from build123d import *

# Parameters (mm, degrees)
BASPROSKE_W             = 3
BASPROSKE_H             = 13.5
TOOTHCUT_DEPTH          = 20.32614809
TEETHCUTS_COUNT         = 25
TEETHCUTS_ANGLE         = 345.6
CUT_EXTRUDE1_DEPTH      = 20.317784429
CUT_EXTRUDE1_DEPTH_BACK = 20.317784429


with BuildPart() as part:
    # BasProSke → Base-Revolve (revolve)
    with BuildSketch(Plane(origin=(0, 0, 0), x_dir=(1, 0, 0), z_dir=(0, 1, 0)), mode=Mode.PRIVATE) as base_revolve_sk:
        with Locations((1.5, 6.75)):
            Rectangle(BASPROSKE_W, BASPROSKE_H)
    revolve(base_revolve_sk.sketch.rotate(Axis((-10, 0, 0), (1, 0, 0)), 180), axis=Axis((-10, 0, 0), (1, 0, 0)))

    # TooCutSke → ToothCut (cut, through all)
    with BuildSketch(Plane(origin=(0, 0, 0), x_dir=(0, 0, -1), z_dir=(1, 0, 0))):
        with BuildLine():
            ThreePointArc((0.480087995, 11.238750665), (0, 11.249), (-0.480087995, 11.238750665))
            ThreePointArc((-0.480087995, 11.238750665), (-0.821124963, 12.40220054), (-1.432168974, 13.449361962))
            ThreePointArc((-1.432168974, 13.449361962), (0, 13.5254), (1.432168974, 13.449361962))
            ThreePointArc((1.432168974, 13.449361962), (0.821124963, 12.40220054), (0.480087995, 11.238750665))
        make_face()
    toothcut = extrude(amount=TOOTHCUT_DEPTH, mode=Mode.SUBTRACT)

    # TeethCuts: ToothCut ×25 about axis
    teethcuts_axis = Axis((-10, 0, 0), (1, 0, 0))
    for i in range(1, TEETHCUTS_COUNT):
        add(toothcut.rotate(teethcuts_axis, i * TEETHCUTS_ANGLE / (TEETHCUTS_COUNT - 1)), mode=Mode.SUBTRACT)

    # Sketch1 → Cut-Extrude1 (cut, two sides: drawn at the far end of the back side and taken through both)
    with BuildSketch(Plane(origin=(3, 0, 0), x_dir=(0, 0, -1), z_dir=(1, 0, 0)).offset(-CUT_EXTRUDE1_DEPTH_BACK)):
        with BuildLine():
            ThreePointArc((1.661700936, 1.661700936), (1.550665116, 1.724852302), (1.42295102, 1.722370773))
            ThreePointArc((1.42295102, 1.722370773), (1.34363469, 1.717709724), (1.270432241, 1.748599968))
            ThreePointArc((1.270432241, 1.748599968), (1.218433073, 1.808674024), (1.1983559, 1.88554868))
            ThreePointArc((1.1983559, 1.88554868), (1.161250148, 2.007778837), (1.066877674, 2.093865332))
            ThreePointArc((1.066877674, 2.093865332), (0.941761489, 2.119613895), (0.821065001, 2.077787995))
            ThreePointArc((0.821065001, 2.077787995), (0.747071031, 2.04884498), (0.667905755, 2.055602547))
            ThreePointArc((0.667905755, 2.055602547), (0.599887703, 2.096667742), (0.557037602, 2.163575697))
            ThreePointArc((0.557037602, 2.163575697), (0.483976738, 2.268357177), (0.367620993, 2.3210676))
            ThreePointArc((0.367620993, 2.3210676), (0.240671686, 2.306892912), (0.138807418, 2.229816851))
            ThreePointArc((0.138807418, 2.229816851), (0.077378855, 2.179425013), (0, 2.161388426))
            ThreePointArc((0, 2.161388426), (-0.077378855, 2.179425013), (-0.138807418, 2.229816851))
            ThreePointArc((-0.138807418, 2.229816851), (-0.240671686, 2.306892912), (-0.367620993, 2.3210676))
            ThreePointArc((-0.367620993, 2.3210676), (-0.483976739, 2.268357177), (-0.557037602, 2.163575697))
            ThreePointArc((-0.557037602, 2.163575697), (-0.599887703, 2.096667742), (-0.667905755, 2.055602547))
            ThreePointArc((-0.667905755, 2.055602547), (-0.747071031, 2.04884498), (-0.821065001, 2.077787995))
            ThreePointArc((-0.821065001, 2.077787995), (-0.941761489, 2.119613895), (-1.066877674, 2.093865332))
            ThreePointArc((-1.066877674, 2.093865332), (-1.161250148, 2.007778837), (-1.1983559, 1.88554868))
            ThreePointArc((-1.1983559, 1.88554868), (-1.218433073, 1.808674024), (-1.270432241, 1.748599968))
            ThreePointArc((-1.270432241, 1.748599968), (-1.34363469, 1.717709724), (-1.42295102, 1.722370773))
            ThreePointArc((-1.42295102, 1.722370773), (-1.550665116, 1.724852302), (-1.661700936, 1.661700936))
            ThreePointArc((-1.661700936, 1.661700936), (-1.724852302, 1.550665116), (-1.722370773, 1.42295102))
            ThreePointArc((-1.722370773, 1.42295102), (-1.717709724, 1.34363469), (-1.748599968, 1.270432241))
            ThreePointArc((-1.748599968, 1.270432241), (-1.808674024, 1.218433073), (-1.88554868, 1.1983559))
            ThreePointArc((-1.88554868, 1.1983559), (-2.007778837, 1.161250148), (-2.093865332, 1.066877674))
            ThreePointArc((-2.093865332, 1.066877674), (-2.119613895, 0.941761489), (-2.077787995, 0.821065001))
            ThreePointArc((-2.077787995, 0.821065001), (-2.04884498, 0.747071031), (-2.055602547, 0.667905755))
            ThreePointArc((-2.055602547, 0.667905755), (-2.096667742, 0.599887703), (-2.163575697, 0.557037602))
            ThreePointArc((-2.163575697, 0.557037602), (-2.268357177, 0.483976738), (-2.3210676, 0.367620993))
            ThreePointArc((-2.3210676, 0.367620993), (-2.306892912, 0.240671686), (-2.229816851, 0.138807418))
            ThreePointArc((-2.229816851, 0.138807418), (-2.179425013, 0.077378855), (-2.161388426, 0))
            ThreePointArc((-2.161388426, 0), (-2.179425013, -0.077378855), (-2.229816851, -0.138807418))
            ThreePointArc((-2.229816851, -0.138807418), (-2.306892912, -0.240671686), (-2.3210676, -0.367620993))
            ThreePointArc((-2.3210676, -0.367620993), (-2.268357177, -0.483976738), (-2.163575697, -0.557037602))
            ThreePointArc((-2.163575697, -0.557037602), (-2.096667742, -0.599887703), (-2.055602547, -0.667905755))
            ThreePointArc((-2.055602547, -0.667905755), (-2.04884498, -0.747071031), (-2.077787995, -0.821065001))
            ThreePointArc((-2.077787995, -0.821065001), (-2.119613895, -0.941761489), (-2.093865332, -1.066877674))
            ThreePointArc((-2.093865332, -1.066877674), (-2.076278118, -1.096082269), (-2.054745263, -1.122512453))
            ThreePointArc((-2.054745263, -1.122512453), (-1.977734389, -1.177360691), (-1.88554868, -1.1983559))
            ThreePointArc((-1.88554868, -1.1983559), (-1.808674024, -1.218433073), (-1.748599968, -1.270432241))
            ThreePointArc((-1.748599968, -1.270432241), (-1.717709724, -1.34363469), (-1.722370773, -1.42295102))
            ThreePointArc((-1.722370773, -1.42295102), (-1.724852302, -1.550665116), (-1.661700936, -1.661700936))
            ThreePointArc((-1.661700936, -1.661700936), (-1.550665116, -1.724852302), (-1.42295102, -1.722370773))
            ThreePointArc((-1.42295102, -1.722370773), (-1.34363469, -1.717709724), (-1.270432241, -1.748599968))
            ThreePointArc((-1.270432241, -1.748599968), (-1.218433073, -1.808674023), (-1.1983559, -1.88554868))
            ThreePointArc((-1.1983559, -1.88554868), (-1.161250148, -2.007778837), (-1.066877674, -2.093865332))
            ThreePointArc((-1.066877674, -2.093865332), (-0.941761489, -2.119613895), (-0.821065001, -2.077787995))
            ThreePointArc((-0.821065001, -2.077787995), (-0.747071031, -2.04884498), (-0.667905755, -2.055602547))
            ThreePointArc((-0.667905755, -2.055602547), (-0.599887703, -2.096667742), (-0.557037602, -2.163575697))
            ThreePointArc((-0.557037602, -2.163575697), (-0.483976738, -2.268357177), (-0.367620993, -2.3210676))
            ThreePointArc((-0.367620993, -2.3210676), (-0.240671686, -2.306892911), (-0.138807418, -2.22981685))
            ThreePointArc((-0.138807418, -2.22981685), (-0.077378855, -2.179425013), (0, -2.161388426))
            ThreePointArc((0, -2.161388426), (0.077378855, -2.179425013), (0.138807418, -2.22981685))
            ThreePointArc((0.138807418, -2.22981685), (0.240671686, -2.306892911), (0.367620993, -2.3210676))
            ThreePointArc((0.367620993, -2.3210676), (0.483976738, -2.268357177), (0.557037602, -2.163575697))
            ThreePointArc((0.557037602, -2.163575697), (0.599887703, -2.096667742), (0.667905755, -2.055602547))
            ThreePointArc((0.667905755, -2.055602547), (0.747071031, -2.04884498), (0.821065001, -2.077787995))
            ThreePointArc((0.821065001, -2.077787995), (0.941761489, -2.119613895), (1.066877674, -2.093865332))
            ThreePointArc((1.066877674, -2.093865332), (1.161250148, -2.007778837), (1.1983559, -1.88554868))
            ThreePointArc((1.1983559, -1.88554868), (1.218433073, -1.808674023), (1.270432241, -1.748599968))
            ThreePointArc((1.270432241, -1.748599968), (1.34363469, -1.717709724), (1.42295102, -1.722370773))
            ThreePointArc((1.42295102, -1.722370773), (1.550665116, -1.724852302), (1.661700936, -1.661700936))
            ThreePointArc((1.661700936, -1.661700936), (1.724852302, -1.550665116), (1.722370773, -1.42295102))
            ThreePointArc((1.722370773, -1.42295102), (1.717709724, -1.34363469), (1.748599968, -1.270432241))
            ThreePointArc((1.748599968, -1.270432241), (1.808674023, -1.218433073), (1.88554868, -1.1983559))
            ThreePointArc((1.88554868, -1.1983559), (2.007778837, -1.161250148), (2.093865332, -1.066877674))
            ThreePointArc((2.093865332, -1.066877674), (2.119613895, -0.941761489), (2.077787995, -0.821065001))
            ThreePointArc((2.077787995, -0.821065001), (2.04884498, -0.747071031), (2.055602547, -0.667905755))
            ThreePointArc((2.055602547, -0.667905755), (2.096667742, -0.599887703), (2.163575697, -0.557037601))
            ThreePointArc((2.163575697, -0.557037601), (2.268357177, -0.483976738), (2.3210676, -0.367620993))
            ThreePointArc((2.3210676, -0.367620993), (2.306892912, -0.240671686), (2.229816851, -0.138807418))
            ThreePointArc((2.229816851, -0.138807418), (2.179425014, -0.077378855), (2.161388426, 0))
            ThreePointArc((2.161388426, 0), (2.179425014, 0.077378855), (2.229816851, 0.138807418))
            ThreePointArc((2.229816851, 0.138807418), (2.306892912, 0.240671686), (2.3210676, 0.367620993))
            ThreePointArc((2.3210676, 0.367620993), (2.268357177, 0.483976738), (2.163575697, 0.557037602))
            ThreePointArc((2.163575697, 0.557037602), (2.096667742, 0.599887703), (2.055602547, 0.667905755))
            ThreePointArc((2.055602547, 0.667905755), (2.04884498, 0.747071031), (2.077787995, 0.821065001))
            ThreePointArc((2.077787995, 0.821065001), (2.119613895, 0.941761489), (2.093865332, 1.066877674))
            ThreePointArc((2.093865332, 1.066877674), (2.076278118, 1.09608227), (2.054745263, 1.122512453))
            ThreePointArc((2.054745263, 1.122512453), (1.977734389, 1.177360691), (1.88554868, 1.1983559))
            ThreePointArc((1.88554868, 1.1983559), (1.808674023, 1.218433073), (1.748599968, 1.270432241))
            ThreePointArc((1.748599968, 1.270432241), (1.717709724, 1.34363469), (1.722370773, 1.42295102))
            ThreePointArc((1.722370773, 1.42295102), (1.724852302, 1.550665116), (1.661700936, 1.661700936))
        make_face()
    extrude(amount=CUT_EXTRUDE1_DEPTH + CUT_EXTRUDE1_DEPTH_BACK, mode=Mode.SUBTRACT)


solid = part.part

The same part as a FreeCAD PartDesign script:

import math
import FreeCAD as App
import Part
import Sketcher

V = App.Vector
Q = App.Units.Quantity

doc = App.newDocument("Part")
body = doc.addObject("PartDesign::Body", "Body")

# Sketch on XZ plane
sketch1 = body.newObject("Sketcher::SketchObject", "Sketch")
sketch1.AttachmentSupport = (doc.getObject("XZ_Plane"), [""])
sketch1.MapMode = "FlatFace"
sketch1.addGeometry([
    Part.LineSegment(V(0, -13.5, 0), V(0, 0, 0)),
    Part.LineSegment(V(0, 0, 0), V(3, 0, 0)),
    Part.LineSegment(V(3, 0, 0), V(3, -13.5, 0)),
    Part.LineSegment(V(3, -13.5, 0), V(0, -13.5, 0)),
], False)
sketch1.addConstraint([
    Sketcher.Constraint("Coincident", 0, 2, 1, 1),
    Sketcher.Constraint("Coincident", 1, 2, 2, 1),
    Sketcher.Constraint("Coincident", 2, 2, 3, 1),
    Sketcher.Constraint("Coincident", 3, 2, 0, 1),
    Sketcher.Constraint("Vertical", 0),
    Sketcher.Constraint("Horizontal", 1),
    Sketcher.Constraint("Vertical", 2),
    Sketcher.Constraint("Horizontal", 3),
    Sketcher.Constraint("Coincident", 0, 2, -1, 1),
    Sketcher.Constraint("DistanceX", 1, 1, 1, 2, Q("3 mm")),
    Sketcher.Constraint("DistanceY", 0, 1, 0, 2, Q("13.5 mm")),
])
revolution = body.newObject("PartDesign::Revolution", "Revolution")
revolution.Profile = sketch1
revolution.ReferenceAxis = (sketch1, ["H_Axis"])
revolution.Angle = 360

# Sketch on YZ plane
sketch2 = body.newObject("Sketcher::SketchObject", "Sketch001")
sketch2.AttachmentSupport = (doc.getObject("YZ_Plane"), [""])
sketch2.MapMode = "FlatFace"
sketch2.addGeometry([
    Part.ArcOfCircle(Part.Circle(V(0, 0, 0), V(0, 0, 1), 11.2), math.radians(-2.45), math.radians(2.45)),
    Part.ArcOfCircle(Part.Circle(V(10.4, -5.4, 0), V(0, 0, 1), 5), math.radians(53), math.radians(81)),
    Part.ArcOfCircle(Part.Circle(V(0, 0, 0), V(0, 0, 1), 13.5), math.radians(-6.08), math.radians(6.08)),
    Part.ArcOfCircle(Part.Circle(V(10.4, 5.4, 0), V(0, 0, 1), 5), math.radians(-81), math.radians(-53)),
], False)
sketch2.addConstraint([
    Sketcher.Constraint("Coincident", 0, 1, 1, 2),
    Sketcher.Constraint("Coincident", 1, 1, 2, 1),
    Sketcher.Constraint("Coincident", 2, 2, 3, 2),
    Sketcher.Constraint("Coincident", 3, 1, 0, 2),
    Sketcher.Constraint("Coincident", 0, 3, -1, 1),
    Sketcher.Constraint("Coincident", 2, 3, -1, 1),
    Sketcher.Constraint("Equal", 1, 3),
    Sketcher.Constraint("Symmetric", 1, 3, 3, 3, -1),
    Sketcher.Constraint("Radius", 1, Q("5 mm")),
    Sketcher.Constraint("Radius", 0, Q("11.249 mm")),
    Sketcher.Constraint("Radius", 2, Q("13.5254 mm")),
    Sketcher.Constraint("DistanceX", -1, 1, 1, 3, Q("10.424401 mm")),
    Sketcher.Constraint("DistanceX", -1, 1, 0, 1, Q("11.238751 mm")),
])
pocket1 = body.newObject("PartDesign::Pocket", "Pocket")
pocket1.Profile = sketch2
pocket1.Type = "ThroughAll"
pocket1.Reversed = True
doc.recompute()

polarpattern = body.newObject("PartDesign::PolarPattern", "PolarPattern")
polarpattern.Originals = [pocket1]
polarpattern.Axis = (doc.getObject("X_Axis"), [""])
polarpattern.Angle = 360
polarpattern.Occurrences = 25
body.Tip = polarpattern

# Sketch on YZ plane
sketch3 = body.newObject("Sketcher::SketchObject", "Sketch002")
sketch3.AttachmentSupport = (doc.getObject("YZ_Plane"), [""])
sketch3.MapMode = "FlatFace"
sketch3.AttachmentOffset = App.Placement(V(0, 0, 3), App.Rotation())
sketch3.addGeometry([
    Part.ArcOfCircle(Part.Circle(V(1.49, -1.49, 0), V(0, 0, 1), 0.24), math.radians(-45), math.radians(16)),  # 0
    Part.ArcOfCircle(Part.Circle(V(1.89, -1.37, 0), V(0, 0, 1), 0.17), math.radians(144), math.radians(196)),  # 1
    Part.ArcOfCircle(Part.Circle(V(1.89, -1.37, 0), V(0, 0, 1), 0.18), math.radians(92), math.radians(144)),  # 2
    Part.ArcOfCircle(Part.Circle(V(1.88, -0.96, 0), V(0, 0, 1), 0.24), math.radians(-88), math.radians(-27)),  # 3
    Part.ArcOfCircle(Part.Circle(V(1.88, -0.96, 0), V(0, 0, 1), 0.24), math.radians(-27), math.radians(34)),  # 4
    Part.ArcOfCircle(Part.Circle(V(2.22, -0.72, 0), V(0, 0, 1), 0.18), math.radians(162), math.radians(214)),  # 5
    Part.ArcOfCircle(Part.Circle(V(2.22, -0.72, 0), V(0, 0, 1), 0.17), math.radians(110), math.radians(162)),  # 6
    Part.ArcOfCircle(Part.Circle(V(2.08, -0.33, 0), V(0, 0, 1), 0.24), math.radians(-70), math.radians(-9)),  # 7
    Part.ArcOfCircle(Part.Circle(V(2.08, -0.33, 0), V(0, 0, 1), 0.24), math.radians(-9), math.radians(52)),  # 8
    Part.ArcOfCircle(Part.Circle(V(2.34, 0, 0), V(0, 0, 1), 0.17), math.radians(180), math.radians(232)),  # 9
    Part.ArcOfCircle(Part.Circle(V(2.34, 0, 0), V(0, 0, 1), 0.17), math.radians(128), math.radians(180)),  # 10
    Part.ArcOfCircle(Part.Circle(V(2.08, 0.33, 0), V(0, 0, 1), 0.24), math.radians(-52), math.radians(9)),  # 11
    Part.ArcOfCircle(Part.Circle(V(2.08, 0.33, 0), V(0, 0, 1), 0.24), math.radians(9), math.radians(70)),  # 12
    Part.ArcOfCircle(Part.Circle(V(2.22, 0.72, 0), V(0, 0, 1), 0.17), math.radians(-162), math.radians(-110)),  # 13
    Part.ArcOfCircle(Part.Circle(V(2.22, 0.72, 0), V(0, 0, 1), 0.18), math.radians(146), math.radians(198)),  # 14
    Part.ArcOfCircle(Part.Circle(V(1.88, 0.96, 0), V(0, 0, 1), 0.24), math.radians(-34), math.radians(27)),  # 15
    Part.ArcOfCircle(Part.Circle(V(1.88, 0.96, 0), V(0, 0, 1), 0.24), math.radians(27), math.radians(88)),  # 16
    Part.ArcOfCircle(Part.Circle(V(1.89, 1.37, 0), V(0, 0, 1), 0.18), math.radians(-144), math.radians(-92)),  # 17
    Part.ArcOfCircle(Part.Circle(V(1.89, 1.37, 0), V(0, 0, 1), 0.17), math.radians(164), math.radians(216)),  # 18
    Part.ArcOfCircle(Part.Circle(V(1.49, 1.49, 0), V(0, 0, 1), 0.24), math.radians(-16), math.radians(45)),  # 19
    Part.ArcOfCircle(Part.Circle(V(1.49, 1.49, 0), V(0, 0, 1), 0.24), math.radians(45), math.radians(106)),  # 20
    Part.ArcOfCircle(Part.Circle(V(1.37, 1.89, 0), V(0, 0, 1), 0.17), math.radians(-126), math.radians(-74)),  # 21
    Part.ArcOfCircle(Part.Circle(V(1.37, 1.89, 0), V(0, 0, 1), 0.18), math.radians(-178), math.radians(-126)),  # 22
    Part.ArcOfCircle(Part.Circle(V(0.96, 1.88, 0), V(0, 0, 1), 0.24), math.radians(2), math.radians(63)),  # 23
    Part.ArcOfCircle(Part.Circle(V(0.96, 1.88, 0), V(0, 0, 1), 0.24), math.radians(63), math.radians(124)),  # 24
    Part.ArcOfCircle(Part.Circle(V(0.72, 2.22, 0), V(0, 0, 1), 0.18), math.radians(-108), math.radians(-56)),  # 25
    Part.ArcOfCircle(Part.Circle(V(0.72, 2.22, 0), V(0, 0, 1), 0.17), math.radians(-160), math.radians(-108)),  # 26
    Part.ArcOfCircle(Part.Circle(V(0.33, 2.08, 0), V(0, 0, 1), 0.24), math.radians(20), math.radians(81)),  # 27
    Part.ArcOfCircle(Part.Circle(V(0.33, 2.08, 0), V(0, 0, 1), 0.24), math.radians(81), math.radians(142)),  # 28
    Part.ArcOfCircle(Part.Circle(V(0, 2.34, 0), V(0, 0, 1), 0.17), math.radians(-90), math.radians(-38)),  # 29
    Part.ArcOfCircle(Part.Circle(V(0, 2.34, 0), V(0, 0, 1), 0.17), math.radians(-142), math.radians(-90)),  # 30
    Part.ArcOfCircle(Part.Circle(V(-0.33, 2.08, 0), V(0, 0, 1), 0.24), math.radians(38), math.radians(99)),  # 31
    Part.ArcOfCircle(Part.Circle(V(-0.33, 2.08, 0), V(0, 0, 1), 0.24), math.radians(99), math.radians(160)),  # 32
    Part.ArcOfCircle(Part.Circle(V(-0.72, 2.22, 0), V(0, 0, 1), 0.17), math.radians(-72), math.radians(-20)),  # 33
    Part.ArcOfCircle(Part.Circle(V(-0.72, 2.22, 0), V(0, 0, 1), 0.18), math.radians(-124), math.radians(-72)),  # 34
    Part.ArcOfCircle(Part.Circle(V(-0.96, 1.88, 0), V(0, 0, 1), 0.24), math.radians(56), math.radians(117)),  # 35
    Part.ArcOfCircle(Part.Circle(V(-0.96, 1.88, 0), V(0, 0, 1), 0.24), math.radians(117), math.radians(133.23)),  # 36
    Part.ArcOfCircle(Part.Circle(V(-0.96, 1.88, 0), V(0, 0, 1), 0.24), math.radians(133), math.radians(178)),  # 37
    Part.ArcOfCircle(Part.Circle(V(-1.37, 1.89, 0), V(0, 0, 1), 0.18), math.radians(-54), math.radians(-2)),  # 38
    Part.ArcOfCircle(Part.Circle(V(-1.37, 1.89, 0), V(0, 0, 1), 0.17), math.radians(-106), math.radians(-54)),  # 39
    Part.ArcOfCircle(Part.Circle(V(-1.49, 1.49, 0), V(0, 0, 1), 0.24), math.radians(74), math.radians(135)),  # 40
    Part.ArcOfCircle(Part.Circle(V(-1.49, 1.49, 0), V(0, 0, 1), 0.24), math.radians(135), math.radians(196)),  # 41
    Part.ArcOfCircle(Part.Circle(V(-1.89, 1.37, 0), V(0, 0, 1), 0.17), math.radians(-36), math.radians(16)),  # 42
    Part.ArcOfCircle(Part.Circle(V(-1.89, 1.37, 0), V(0, 0, 1), 0.17), math.radians(-88), math.radians(-36)),  # 43
    Part.ArcOfCircle(Part.Circle(V(-1.88, 0.96, 0), V(0, 0, 1), 0.24), math.radians(92), math.radians(153)),  # 44
    Part.ArcOfCircle(Part.Circle(V(-1.88, 0.96, 0), V(0, 0, 1), 0.24), math.radians(153), math.radians(214)),  # 45
    Part.ArcOfCircle(Part.Circle(V(-2.22, 0.72, 0), V(0, 0, 1), 0.18), math.radians(-18), math.radians(34)),  # 46
    Part.ArcOfCircle(Part.Circle(V(-2.22, 0.72, 0), V(0, 0, 1), 0.17), math.radians(-70), math.radians(-18)),  # 47
    Part.ArcOfCircle(Part.Circle(V(-2.08, 0.33, 0), V(0, 0, 1), 0.24), math.radians(110), math.radians(171)),  # 48
    Part.ArcOfCircle(Part.Circle(V(-2.08, 0.33, 0), V(0, 0, 1), 0.24), math.radians(171), math.radians(232)),  # 49
    Part.ArcOfCircle(Part.Circle(V(-2.34, 0, 0), V(0, 0, 1), 0.17), math.radians(0), math.radians(52)),  # 50
    Part.ArcOfCircle(Part.Circle(V(-2.34, 0, 0), V(0, 0, 1), 0.17), math.radians(-52), math.radians(0)),  # 51
    Part.ArcOfCircle(Part.Circle(V(-2.08, -0.33, 0), V(0, 0, 1), 0.24), math.radians(128), math.radians(189)),  # 52
    Part.ArcOfCircle(Part.Circle(V(-2.08, -0.33, 0), V(0, 0, 1), 0.24), math.radians(-171), math.radians(-110)),  # 53
    Part.ArcOfCircle(Part.Circle(V(-2.22, -0.72, 0), V(0, 0, 1), 0.17), math.radians(18), math.radians(70)),  # 54
    Part.ArcOfCircle(Part.Circle(V(-2.22, -0.72, 0), V(0, 0, 1), 0.18), math.radians(-34), math.radians(18)),  # 55
    Part.ArcOfCircle(Part.Circle(V(-1.88, -0.96, 0), V(0, 0, 1), 0.24), math.radians(146), math.radians(207)),  # 56
    Part.ArcOfCircle(Part.Circle(V(-1.88, -0.96, 0), V(0, 0, 1), 0.24), math.radians(-153), math.radians(-92)),  # 57
    Part.ArcOfCircle(Part.Circle(V(-1.89, -1.37, 0), V(0, 0, 1), 0.17), math.radians(36), math.radians(88)),  # 58
    Part.ArcOfCircle(Part.Circle(V(-1.89, -1.37, 0), V(0, 0, 1), 0.17), math.radians(-16), math.radians(36)),  # 59
    Part.ArcOfCircle(Part.Circle(V(-1.49, -1.49, 0), V(0, 0, 1), 0.24), math.radians(164), math.radians(225)),  # 60
    Part.ArcOfCircle(Part.Circle(V(-1.49, -1.49, 0), V(0, 0, 1), 0.24), math.radians(-135), math.radians(-74)),  # 61
    Part.ArcOfCircle(Part.Circle(V(-1.37, -1.89, 0), V(0, 0, 1), 0.17), math.radians(54), math.radians(106)),  # 62
    Part.ArcOfCircle(Part.Circle(V(-1.37, -1.89, 0), V(0, 0, 1), 0.17), math.radians(2), math.radians(54)),  # 63
    Part.ArcOfCircle(Part.Circle(V(-0.96, -1.88, 0), V(0, 0, 1), 0.24), math.radians(-178), math.radians(-117)),  # 64
    Part.ArcOfCircle(Part.Circle(V(-0.96, -1.88, 0), V(0, 0, 1), 0.24), math.radians(-117), math.radians(-56)),  # 65
    Part.ArcOfCircle(Part.Circle(V(-0.72, -2.22, 0), V(0, 0, 1), 0.18), math.radians(72), math.radians(124)),  # 66
    Part.ArcOfCircle(Part.Circle(V(-0.72, -2.22, 0), V(0, 0, 1), 0.18), math.radians(20), math.radians(72)),  # 67
    Part.ArcOfCircle(Part.Circle(V(-0.33, -2.08, 0), V(0, 0, 1), 0.24), math.radians(-160), math.radians(-99)),  # 68
    Part.ArcOfCircle(Part.Circle(V(-0.33, -2.08, 0), V(0, 0, 1), 0.24), math.radians(-99), math.radians(-38)),  # 69
    Part.ArcOfCircle(Part.Circle(V(0, -2.34, 0), V(0, 0, 1), 0.18), math.radians(90), math.radians(142)),  # 70
    Part.ArcOfCircle(Part.Circle(V(0, -2.34, 0), V(0, 0, 1), 0.18), math.radians(38), math.radians(90)),  # 71
    Part.ArcOfCircle(Part.Circle(V(0.33, -2.08, 0), V(0, 0, 1), 0.24), math.radians(-142), math.radians(-81)),  # 72
    Part.ArcOfCircle(Part.Circle(V(0.33, -2.08, 0), V(0, 0, 1), 0.24), math.radians(-81), math.radians(-20)),  # 73
    Part.ArcOfCircle(Part.Circle(V(0.72, -2.22, 0), V(0, 0, 1), 0.17), math.radians(108), math.radians(160)),  # 74
    Part.ArcOfCircle(Part.Circle(V(0.72, -2.22, 0), V(0, 0, 1), 0.18), math.radians(56), math.radians(108)),  # 75
    Part.ArcOfCircle(Part.Circle(V(0.96, -1.88, 0), V(0, 0, 1), 0.24), math.radians(-124), math.radians(-63)),  # 76
    Part.ArcOfCircle(Part.Circle(V(0.96, -1.88, 0), V(0, 0, 1), 0.24), math.radians(-63), math.radians(-46.77)),  # 77
    Part.ArcOfCircle(Part.Circle(V(0.96, -1.88, 0), V(0, 0, 1), 0.24), math.radians(-47), math.radians(-2)),  # 78
    Part.ArcOfCircle(Part.Circle(V(1.37, -1.89, 0), V(0, 0, 1), 0.17), math.radians(126), math.radians(178)),  # 79
    Part.ArcOfCircle(Part.Circle(V(1.37, -1.89, 0), V(0, 0, 1), 0.17), math.radians(74), math.radians(126)),  # 80
    Part.ArcOfCircle(Part.Circle(V(1.49, -1.49, 0), V(0, 0, 1), 0.24), math.radians(-106), math.radians(-45)),  # 81
], False)
sketch3.addConstraint([
    Sketcher.Constraint("Tangent", 0, 2, 1, 2),
    Sketcher.Constraint("Tangent", 1, 1, 2, 2),
    Sketcher.Constraint("Tangent", 2, 1, 3, 1),
    Sketcher.Constraint("Tangent", 3, 2, 4, 1),
    Sketcher.Constraint("Tangent", 4, 2, 5, 2),
    Sketcher.Constraint("Tangent", 5, 1, 6, 2),
    Sketcher.Constraint("Tangent", 6, 1, 7, 1),
    Sketcher.Constraint("Tangent", 7, 2, 8, 1),
    Sketcher.Constraint("Tangent", 8, 2, 9, 2),
    Sketcher.Constraint("Tangent", 9, 1, 10, 2),
    Sketcher.Constraint("Tangent", 10, 1, 11, 1),
    Sketcher.Constraint("Tangent", 11, 2, 12, 1),
    Sketcher.Constraint("Tangent", 12, 2, 13, 2),
    Sketcher.Constraint("Tangent", 13, 1, 14, 2),
    Sketcher.Constraint("Tangent", 14, 1, 15, 1),
    Sketcher.Constraint("Tangent", 15, 2, 16, 1),
    Sketcher.Constraint("Tangent", 16, 2, 17, 2),
    Sketcher.Constraint("Tangent", 17, 1, 18, 2),
    Sketcher.Constraint("Tangent", 18, 1, 19, 1),
    Sketcher.Constraint("Tangent", 19, 2, 20, 1),
    Sketcher.Constraint("Tangent", 20, 2, 21, 2),
    Sketcher.Constraint("Tangent", 21, 1, 22, 2),
    Sketcher.Constraint("Tangent", 22, 1, 23, 1),
    Sketcher.Constraint("Tangent", 23, 2, 24, 1),
    Sketcher.Constraint("Tangent", 24, 2, 25, 2),
    Sketcher.Constraint("Tangent", 25, 1, 26, 2),
    Sketcher.Constraint("Tangent", 26, 1, 27, 1),
    Sketcher.Constraint("Tangent", 27, 2, 28, 1),
    Sketcher.Constraint("Tangent", 28, 2, 29, 2),
    Sketcher.Constraint("Tangent", 29, 1, 30, 2),
    Sketcher.Constraint("Tangent", 30, 1, 31, 1),
    Sketcher.Constraint("Tangent", 31, 2, 32, 1),
    Sketcher.Constraint("Tangent", 32, 2, 33, 2),
    Sketcher.Constraint("Tangent", 33, 1, 34, 2),
    Sketcher.Constraint("Tangent", 34, 1, 35, 1),
    Sketcher.Constraint("Tangent", 35, 2, 36, 1),
    Sketcher.Constraint("Tangent", 36, 2, 37, 1),
    Sketcher.Constraint("Tangent", 37, 2, 38, 2),
    Sketcher.Constraint("Tangent", 38, 1, 39, 2),
    Sketcher.Constraint("Tangent", 39, 1, 40, 1),
    Sketcher.Constraint("Tangent", 40, 2, 41, 1),
    Sketcher.Constraint("Tangent", 41, 2, 42, 2),
    Sketcher.Constraint("Tangent", 42, 1, 43, 2),
    Sketcher.Constraint("Tangent", 43, 1, 44, 1),
    Sketcher.Constraint("Tangent", 44, 2, 45, 1),
    Sketcher.Constraint("Tangent", 45, 2, 46, 2),
    Sketcher.Constraint("Tangent", 46, 1, 47, 2),
    Sketcher.Constraint("Tangent", 47, 1, 48, 1),
    Sketcher.Constraint("Tangent", 48, 2, 49, 1),
    Sketcher.Constraint("Tangent", 49, 2, 50, 2),
    Sketcher.Constraint("Tangent", 50, 1, 51, 2),
    Sketcher.Constraint("Tangent", 51, 1, 52, 1),
    Sketcher.Constraint("Tangent", 52, 2, 53, 1),
    Sketcher.Constraint("Tangent", 53, 2, 54, 2),
    Sketcher.Constraint("Tangent", 54, 1, 55, 2),
    Sketcher.Constraint("Tangent", 55, 1, 56, 1),
    Sketcher.Constraint("Tangent", 56, 2, 57, 1),
    Sketcher.Constraint("Tangent", 57, 2, 58, 2),
    Sketcher.Constraint("Tangent", 58, 1, 59, 2),
    Sketcher.Constraint("Tangent", 59, 1, 60, 1),
    Sketcher.Constraint("Tangent", 60, 2, 61, 1),
    Sketcher.Constraint("Tangent", 61, 2, 62, 2),
    Sketcher.Constraint("Tangent", 62, 1, 63, 2),
    Sketcher.Constraint("Tangent", 63, 1, 64, 1),
    Sketcher.Constraint("Tangent", 64, 2, 65, 1),
    Sketcher.Constraint("Tangent", 65, 2, 66, 2),
    Sketcher.Constraint("Tangent", 66, 1, 67, 2),
    Sketcher.Constraint("Tangent", 67, 1, 68, 1),
    Sketcher.Constraint("Tangent", 68, 2, 69, 1),
    Sketcher.Constraint("Tangent", 69, 2, 70, 2),
    Sketcher.Constraint("Tangent", 70, 1, 71, 2),
    Sketcher.Constraint("Tangent", 71, 1, 72, 1),
    Sketcher.Constraint("Tangent", 72, 2, 73, 1),
    Sketcher.Constraint("Tangent", 73, 2, 74, 2),
    Sketcher.Constraint("Tangent", 74, 1, 75, 2),
    Sketcher.Constraint("Tangent", 75, 1, 76, 1),
    Sketcher.Constraint("Tangent", 76, 2, 77, 1),
    Sketcher.Constraint("Tangent", 77, 2, 78, 1),
    Sketcher.Constraint("Tangent", 78, 2, 79, 2),
    Sketcher.Constraint("Tangent", 79, 1, 80, 2),
    Sketcher.Constraint("Tangent", 80, 1, 81, 1),
    Sketcher.Constraint("Tangent", 81, 2, 0, 1),
    Sketcher.Constraint("Coincident", 37, 3, 35, 3),
    Sketcher.Constraint("Coincident", 78, 3, 76, 3),
    Sketcher.Constraint("Equal", 1, 2),
    Sketcher.Constraint("Equal", 0, 3),
    Sketcher.Constraint("Equal", 3, 4),
    Sketcher.Constraint("Equal", 2, 5),
    Sketcher.Constraint("Equal", 5, 6),
    Sketcher.Constraint("Equal", 4, 7),
    Sketcher.Constraint("Equal", 7, 8),
    Sketcher.Constraint("Equal", 6, 9),
    Sketcher.Constraint("Equal", 9, 10),
    Sketcher.Constraint("Equal", 8, 11),
    Sketcher.Constraint("Equal", 11, 12),
    Sketcher.Constraint("Equal", 10, 13),
    Sketcher.Constraint("Equal", 13, 14),
    Sketcher.Constraint("Equal", 12, 15),
    Sketcher.Constraint("Equal", 15, 16),
    Sketcher.Constraint("Equal", 14, 17),
    Sketcher.Constraint("Equal", 17, 18),
    Sketcher.Constraint("Equal", 16, 19),
    Sketcher.Constraint("Equal", 19, 20),
    Sketcher.Constraint("Equal", 18, 21),
    Sketcher.Constraint("Equal", 21, 22),
    Sketcher.Constraint("Equal", 20, 23),
    Sketcher.Constraint("Equal", 23, 24),
    Sketcher.Constraint("Equal", 22, 25),
    Sketcher.Constraint("Equal", 25, 26),
    Sketcher.Constraint("Equal", 24, 27),
    Sketcher.Constraint("Equal", 27, 28),
    Sketcher.Constraint("Equal", 26, 29),
    Sketcher.Constraint("Equal", 29, 30),
    Sketcher.Constraint("Equal", 28, 31),
    Sketcher.Constraint("Equal", 31, 32),
    Sketcher.Constraint("Equal", 30, 33),
    Sketcher.Constraint("Equal", 33, 34),
    Sketcher.Constraint("Equal", 32, 35),
    Sketcher.Constraint("Equal", 34, 38),
    Sketcher.Constraint("Equal", 38, 39),
    Sketcher.Constraint("Equal", 37, 40),
    Sketcher.Constraint("Equal", 40, 41),
    Sketcher.Constraint("Equal", 39, 42),
    Sketcher.Constraint("Equal", 42, 43),
    Sketcher.Constraint("Equal", 41, 44),
    Sketcher.Constraint("Equal", 44, 45),
    Sketcher.Constraint("Equal", 43, 46),
    Sketcher.Constraint("Equal", 46, 47),
    Sketcher.Constraint("Equal", 45, 48),
    Sketcher.Constraint("Equal", 48, 49),
    Sketcher.Constraint("Equal", 47, 50),
    Sketcher.Constraint("Equal", 50, 51),
    Sketcher.Constraint("Equal", 49, 52),
    Sketcher.Constraint("Equal", 52, 53),
    Sketcher.Constraint("Equal", 51, 54),
    Sketcher.Constraint("Equal", 54, 55),
    Sketcher.Constraint("Equal", 53, 56),
    Sketcher.Constraint("Equal", 56, 57),
    Sketcher.Constraint("Equal", 55, 58),
    Sketcher.Constraint("Equal", 58, 59),
    Sketcher.Constraint("Equal", 57, 60),
    Sketcher.Constraint("Equal", 60, 61),
    Sketcher.Constraint("Equal", 59, 62),
    Sketcher.Constraint("Equal", 62, 63),
    Sketcher.Constraint("Equal", 61, 64),
    Sketcher.Constraint("Equal", 64, 65),
    Sketcher.Constraint("Equal", 63, 66),
    Sketcher.Constraint("Equal", 66, 67),
    Sketcher.Constraint("Equal", 65, 68),
    Sketcher.Constraint("Equal", 68, 69),
    Sketcher.Constraint("Equal", 67, 70),
    Sketcher.Constraint("Equal", 70, 71),
    Sketcher.Constraint("Equal", 69, 72),
    Sketcher.Constraint("Equal", 72, 73),
    Sketcher.Constraint("Equal", 71, 74),
    Sketcher.Constraint("Equal", 74, 75),
    Sketcher.Constraint("Equal", 73, 76),
    Sketcher.Constraint("Equal", 75, 79),
    Sketcher.Constraint("Equal", 79, 80),
    Sketcher.Constraint("Equal", 78, 81),
    Sketcher.Constraint("Symmetric", 0, 3, 40, 3, -1, 1),
    Sketcher.Constraint("Symmetric", 3, 3, 44, 3, -1, 1),
    Sketcher.Constraint("Symmetric", 7, 3, 48, 3, -1, 1),
    Sketcher.Constraint("Symmetric", 11, 3, 52, 3, -1, 1),
    Sketcher.Constraint("Symmetric", 15, 3, 56, 3, -1, 1),
    Sketcher.Constraint("Symmetric", 19, 3, 60, 3, -1, 1),
    Sketcher.Constraint("Symmetric", 23, 3, 64, 3, -1, 1),
    Sketcher.Constraint("Symmetric", 27, 3, 68, 3, -1, 1),
    Sketcher.Constraint("Symmetric", 31, 3, 72, 3, -1, 1),
    Sketcher.Constraint("Symmetric", 35, 3, 76, 3, -1, 1),
    Sketcher.Constraint("Symmetric", 27, 3, 31, 3, -2),
    Sketcher.Constraint("Symmetric", 23, 3, 35, 3, -2),
    Sketcher.Constraint("Symmetric", 19, 3, 40, 3, -2),
    Sketcher.Constraint("Symmetric", 15, 3, 44, 3, -2),
    Sketcher.Constraint("Symmetric", 11, 3, 48, 3, -2),
    Sketcher.Constraint("PointOnObject", 9, 1, -1),
    Sketcher.Constraint("PointOnObject", 29, 1, -2),
    Sketcher.Constraint("PointOnObject", 50, 1, -1),
    Sketcher.Constraint("PointOnObject", 70, 1, -2),
    Sketcher.Constraint("Horizontal", 27, 2, 31, 2),
    Sketcher.Constraint("Horizontal", 25, 1, 33, 1),
    Sketcher.Constraint("Horizontal", 23, 2, 35, 2),
    Sketcher.Constraint("Horizontal", 21, 1, 38, 1),
    Sketcher.Constraint("Horizontal", 19, 2, 40, 2),
    Sketcher.Constraint("Horizontal", 17, 1, 42, 1),
    Sketcher.Constraint("Horizontal", 15, 2, 44, 2),
    Sketcher.Constraint("Horizontal", 13, 1, 46, 1),
    Sketcher.Constraint("Horizontal", 11, 2, 48, 2),
    Sketcher.Constraint("Horizontal", 7, 2, 52, 2),
    Sketcher.Constraint("Horizontal", 5, 1, 54, 1),
    Sketcher.Constraint("Horizontal", 3, 2, 56, 2),
    Sketcher.Constraint("Horizontal", 1, 1, 58, 1),
    Sketcher.Constraint("Horizontal", 68, 2, 72, 2),
    Sketcher.Constraint("Horizontal", 66, 1, 74, 1),
    Sketcher.Constraint("Horizontal", 64, 2, 76, 2),
    Sketcher.Constraint("Horizontal", 62, 1, 79, 1),
    Sketcher.Constraint("Horizontal", 60, 2, 81, 2),
    Sketcher.Constraint("Vertical", 7, 2, 11, 2),
    Sketcher.Constraint("Vertical", 5, 1, 13, 1),
    Sketcher.Constraint("Vertical", 3, 2, 15, 2),
    Sketcher.Constraint("Vertical", 1, 1, 17, 1),
    Sketcher.Constraint("Vertical", 40, 2, 60, 2),
    Sketcher.Constraint("Vertical", 38, 1, 62, 1),
    Sketcher.Constraint("Vertical", 35, 2, 64, 2),
    Sketcher.Constraint("Vertical", 33, 1, 66, 1),
    Sketcher.Constraint("Vertical", 31, 2, 68, 2),
    Sketcher.Constraint("Radius", 1, Q("0.175 mm")),
    Sketcher.Constraint("Radius", 0, Q("0.240953 mm")),
    Sketcher.Constraint("DistanceX", -1, 1, 1, 1, Q("1.7486 mm")),
    Sketcher.Constraint("DistanceX", -1, 1, 19, 2, Q("1.661701 mm")),
    Sketcher.Constraint("DistanceY", -1, 1, 19, 2, Q("1.661701 mm")),
    Sketcher.Constraint("DistanceY", -1, 1, 21, 1, Q("1.7486 mm")),
    Sketcher.Constraint("DistanceX", -1, 1, 0, 3, Q("1.491322 mm")),
    Sketcher.Constraint("DistanceX", -1, 1, 7, 3, Q("2.083081 mm")),
    Sketcher.Constraint("DistanceX", -1, 1, 9, 3, Q("2.336388 mm")),
    Sketcher.Constraint("DistanceY", -1, 1, 27, 3, Q("2.083081 mm")),
    Sketcher.Constraint("DistanceY", -1, 1, 29, 3, Q("2.336388 mm")),
    Sketcher.Constraint("DistanceX", -1, 1, 0, 2, Q("1.722371 mm")),
    Sketcher.Constraint("DistanceX", -1, 1, 2, 1, Q("1.885549 mm")),
    Sketcher.Constraint("DistanceY", 7, 2, -1, 1, Q("0.367621 mm")),
    Sketcher.Constraint("DistanceX", -1, 1, 20, 2, Q("1.422951 mm")),
    Sketcher.Constraint("DistanceY", -1, 1, 22, 1, Q("1.885549 mm")),
    Sketcher.Constraint("DistanceX", -1, 1, 27, 2, Q("0.367621 mm")),
    Sketcher.Constraint("DistanceX", -1, 1, 3, 2, Q("2.093865 mm")),
    Sketcher.Constraint("DistanceX", -1, 1, 5, 1, Q("2.055603 mm")),
    Sketcher.Constraint("DistanceX", -1, 1, 23, 2, Q("1.066878 mm")),
    Sketcher.Constraint("DistanceX", -1, 1, 25, 1, Q("0.667906 mm")),
    Sketcher.Constraint("DistanceX", 36, 2, -1, 1, Q("1.122512 mm")),
    Sketcher.Constraint("DistanceX", -1, 1, 77, 2, Q("1.122512 mm")),
])
pocket2 = body.newObject("PartDesign::Pocket", "Pocket001")
pocket2.Profile = sketch3
pocket2.Type = "ThroughAll"
pocket2.Midplane = True

doc.recompute()
